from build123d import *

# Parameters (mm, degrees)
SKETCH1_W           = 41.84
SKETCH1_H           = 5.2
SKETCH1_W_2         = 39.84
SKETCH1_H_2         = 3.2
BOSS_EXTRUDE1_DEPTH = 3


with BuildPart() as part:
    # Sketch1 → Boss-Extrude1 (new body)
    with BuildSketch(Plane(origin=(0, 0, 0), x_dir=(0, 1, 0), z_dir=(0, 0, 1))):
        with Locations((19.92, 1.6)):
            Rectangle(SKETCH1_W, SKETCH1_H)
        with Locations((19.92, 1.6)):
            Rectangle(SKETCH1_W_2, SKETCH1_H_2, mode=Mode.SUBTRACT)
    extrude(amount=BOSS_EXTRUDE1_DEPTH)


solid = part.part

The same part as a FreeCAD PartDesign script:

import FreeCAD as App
import Part
import Sketcher
from FreeCAD import Vector
Q = App.Units.Quantity

doc = App.newDocument("Part")
body = doc.addObject("PartDesign::Body", "Body")

# Sketch on XY plane
sketch1 = doc.addObject("Sketcher::SketchObject", "Sketch")
body.addObject(sketch1)
sketch1.AttachmentSupport = (doc.XY_Plane, [""])
sketch1.MapMode = "FlatFace"
sketch1.addGeometry(Part.LineSegment(Vector(-4.2, -1, 0), Vector(1, -1, 0)), False)
sketch1.addGeometry(Part.LineSegment(Vector(1, -1, 0), Vector(1, 40.84, 0)), False)
sketch1.addGeometry(Part.LineSegment(Vector(1, 40.84, 0), Vector(-4.2, 40.84, 0)), False)
sketch1.addGeometry(Part.LineSegment(Vector(-4.2, 40.84, 0), Vector(-4.2, -1, 0)), False)
sketch1.addGeometry(Part.LineSegment(Vector(0, 39.84, 0), Vector(0, 0, 0)), False)
sketch1.addGeometry(Part.LineSegment(Vector(0, 0, 0), Vector(-3.2, 0, 0)), False)
sketch1.addGeometry(Part.LineSegment(Vector(-3.2, 0, 0), Vector(-3.2, 39.84, 0)), False)
sketch1.addGeometry(Part.LineSegment(Vector(-3.2, 39.84, 0), Vector(0, 39.84, 0)), False)
sketch1.addConstraint(Sketcher.Constraint("Coincident", 0, 2, 1, 1))
sketch1.addConstraint(Sketcher.Constraint("Coincident", 1, 2, 2, 1))
sketch1.addConstraint(Sketcher.Constraint("Coincident", 2, 2, 3, 1))
sketch1.addConstraint(Sketcher.Constraint("Coincident", 3, 2, 0, 1))
sketch1.addConstraint(Sketcher.Constraint("Coincident", 4, 2, 5, 1))
sketch1.addConstraint(Sketcher.Constraint("Coincident", 5, 2, 6, 1))
sketch1.addConstraint(Sketcher.Constraint("Coincident", 6, 2, 7, 1))
sketch1.addConstraint(Sketcher.Constraint("Coincident", 7, 2, 4, 1))
sketch1.addConstraint(Sketcher.Constraint("Horizontal", 0))
sketch1.addConstraint(Sketcher.Constraint("Vertical", 1))
sketch1.addConstraint(Sketcher.Constraint("Horizontal", 2))
sketch1.addConstraint(Sketcher.Constraint("Vertical", 3))
sketch1.addConstraint(Sketcher.Constraint("Vertical", 4))
sketch1.addConstraint(Sketcher.Constraint("Horizontal", 5))
sketch1.addConstraint(Sketcher.Constraint("Vertical", 6))
sketch1.addConstraint(Sketcher.Constraint("Horizontal", 7))
sketch1.addConstraint(Sketcher.Constraint("Coincident", 4, 2, -1, 1))
sketch1.addConstraint(Sketcher.Constraint("DistanceX", 0, 1, 0, 2, Q("5.2 mm")))
sketch1.addConstraint(Sketcher.Constraint("DistanceX", 5, 2, 5, 1, Q("3.2 mm")))
sketch1.addConstraint(Sketcher.Constraint("DistanceX", -1, 1, 0, 2, Q("1 mm")))
sketch1.addConstraint(Sketcher.Constraint("DistanceY", 0, 2, -1, 1, Q("1 mm")))
sketch1.addConstraint(Sketcher.Constraint("DistanceY", 6, 2, 2, 2, Q("1 mm")))
sketch1.addConstraint(Sketcher.Constraint("DistanceY", 1, 1, 1, 2, Q("41.84 mm")))
pad1 = doc.addObject("PartDesign::Pad", "Pad")
body.addObject(pad1)
pad1.Profile = sketch1
pad1.Length = 3

doc.recompute()
